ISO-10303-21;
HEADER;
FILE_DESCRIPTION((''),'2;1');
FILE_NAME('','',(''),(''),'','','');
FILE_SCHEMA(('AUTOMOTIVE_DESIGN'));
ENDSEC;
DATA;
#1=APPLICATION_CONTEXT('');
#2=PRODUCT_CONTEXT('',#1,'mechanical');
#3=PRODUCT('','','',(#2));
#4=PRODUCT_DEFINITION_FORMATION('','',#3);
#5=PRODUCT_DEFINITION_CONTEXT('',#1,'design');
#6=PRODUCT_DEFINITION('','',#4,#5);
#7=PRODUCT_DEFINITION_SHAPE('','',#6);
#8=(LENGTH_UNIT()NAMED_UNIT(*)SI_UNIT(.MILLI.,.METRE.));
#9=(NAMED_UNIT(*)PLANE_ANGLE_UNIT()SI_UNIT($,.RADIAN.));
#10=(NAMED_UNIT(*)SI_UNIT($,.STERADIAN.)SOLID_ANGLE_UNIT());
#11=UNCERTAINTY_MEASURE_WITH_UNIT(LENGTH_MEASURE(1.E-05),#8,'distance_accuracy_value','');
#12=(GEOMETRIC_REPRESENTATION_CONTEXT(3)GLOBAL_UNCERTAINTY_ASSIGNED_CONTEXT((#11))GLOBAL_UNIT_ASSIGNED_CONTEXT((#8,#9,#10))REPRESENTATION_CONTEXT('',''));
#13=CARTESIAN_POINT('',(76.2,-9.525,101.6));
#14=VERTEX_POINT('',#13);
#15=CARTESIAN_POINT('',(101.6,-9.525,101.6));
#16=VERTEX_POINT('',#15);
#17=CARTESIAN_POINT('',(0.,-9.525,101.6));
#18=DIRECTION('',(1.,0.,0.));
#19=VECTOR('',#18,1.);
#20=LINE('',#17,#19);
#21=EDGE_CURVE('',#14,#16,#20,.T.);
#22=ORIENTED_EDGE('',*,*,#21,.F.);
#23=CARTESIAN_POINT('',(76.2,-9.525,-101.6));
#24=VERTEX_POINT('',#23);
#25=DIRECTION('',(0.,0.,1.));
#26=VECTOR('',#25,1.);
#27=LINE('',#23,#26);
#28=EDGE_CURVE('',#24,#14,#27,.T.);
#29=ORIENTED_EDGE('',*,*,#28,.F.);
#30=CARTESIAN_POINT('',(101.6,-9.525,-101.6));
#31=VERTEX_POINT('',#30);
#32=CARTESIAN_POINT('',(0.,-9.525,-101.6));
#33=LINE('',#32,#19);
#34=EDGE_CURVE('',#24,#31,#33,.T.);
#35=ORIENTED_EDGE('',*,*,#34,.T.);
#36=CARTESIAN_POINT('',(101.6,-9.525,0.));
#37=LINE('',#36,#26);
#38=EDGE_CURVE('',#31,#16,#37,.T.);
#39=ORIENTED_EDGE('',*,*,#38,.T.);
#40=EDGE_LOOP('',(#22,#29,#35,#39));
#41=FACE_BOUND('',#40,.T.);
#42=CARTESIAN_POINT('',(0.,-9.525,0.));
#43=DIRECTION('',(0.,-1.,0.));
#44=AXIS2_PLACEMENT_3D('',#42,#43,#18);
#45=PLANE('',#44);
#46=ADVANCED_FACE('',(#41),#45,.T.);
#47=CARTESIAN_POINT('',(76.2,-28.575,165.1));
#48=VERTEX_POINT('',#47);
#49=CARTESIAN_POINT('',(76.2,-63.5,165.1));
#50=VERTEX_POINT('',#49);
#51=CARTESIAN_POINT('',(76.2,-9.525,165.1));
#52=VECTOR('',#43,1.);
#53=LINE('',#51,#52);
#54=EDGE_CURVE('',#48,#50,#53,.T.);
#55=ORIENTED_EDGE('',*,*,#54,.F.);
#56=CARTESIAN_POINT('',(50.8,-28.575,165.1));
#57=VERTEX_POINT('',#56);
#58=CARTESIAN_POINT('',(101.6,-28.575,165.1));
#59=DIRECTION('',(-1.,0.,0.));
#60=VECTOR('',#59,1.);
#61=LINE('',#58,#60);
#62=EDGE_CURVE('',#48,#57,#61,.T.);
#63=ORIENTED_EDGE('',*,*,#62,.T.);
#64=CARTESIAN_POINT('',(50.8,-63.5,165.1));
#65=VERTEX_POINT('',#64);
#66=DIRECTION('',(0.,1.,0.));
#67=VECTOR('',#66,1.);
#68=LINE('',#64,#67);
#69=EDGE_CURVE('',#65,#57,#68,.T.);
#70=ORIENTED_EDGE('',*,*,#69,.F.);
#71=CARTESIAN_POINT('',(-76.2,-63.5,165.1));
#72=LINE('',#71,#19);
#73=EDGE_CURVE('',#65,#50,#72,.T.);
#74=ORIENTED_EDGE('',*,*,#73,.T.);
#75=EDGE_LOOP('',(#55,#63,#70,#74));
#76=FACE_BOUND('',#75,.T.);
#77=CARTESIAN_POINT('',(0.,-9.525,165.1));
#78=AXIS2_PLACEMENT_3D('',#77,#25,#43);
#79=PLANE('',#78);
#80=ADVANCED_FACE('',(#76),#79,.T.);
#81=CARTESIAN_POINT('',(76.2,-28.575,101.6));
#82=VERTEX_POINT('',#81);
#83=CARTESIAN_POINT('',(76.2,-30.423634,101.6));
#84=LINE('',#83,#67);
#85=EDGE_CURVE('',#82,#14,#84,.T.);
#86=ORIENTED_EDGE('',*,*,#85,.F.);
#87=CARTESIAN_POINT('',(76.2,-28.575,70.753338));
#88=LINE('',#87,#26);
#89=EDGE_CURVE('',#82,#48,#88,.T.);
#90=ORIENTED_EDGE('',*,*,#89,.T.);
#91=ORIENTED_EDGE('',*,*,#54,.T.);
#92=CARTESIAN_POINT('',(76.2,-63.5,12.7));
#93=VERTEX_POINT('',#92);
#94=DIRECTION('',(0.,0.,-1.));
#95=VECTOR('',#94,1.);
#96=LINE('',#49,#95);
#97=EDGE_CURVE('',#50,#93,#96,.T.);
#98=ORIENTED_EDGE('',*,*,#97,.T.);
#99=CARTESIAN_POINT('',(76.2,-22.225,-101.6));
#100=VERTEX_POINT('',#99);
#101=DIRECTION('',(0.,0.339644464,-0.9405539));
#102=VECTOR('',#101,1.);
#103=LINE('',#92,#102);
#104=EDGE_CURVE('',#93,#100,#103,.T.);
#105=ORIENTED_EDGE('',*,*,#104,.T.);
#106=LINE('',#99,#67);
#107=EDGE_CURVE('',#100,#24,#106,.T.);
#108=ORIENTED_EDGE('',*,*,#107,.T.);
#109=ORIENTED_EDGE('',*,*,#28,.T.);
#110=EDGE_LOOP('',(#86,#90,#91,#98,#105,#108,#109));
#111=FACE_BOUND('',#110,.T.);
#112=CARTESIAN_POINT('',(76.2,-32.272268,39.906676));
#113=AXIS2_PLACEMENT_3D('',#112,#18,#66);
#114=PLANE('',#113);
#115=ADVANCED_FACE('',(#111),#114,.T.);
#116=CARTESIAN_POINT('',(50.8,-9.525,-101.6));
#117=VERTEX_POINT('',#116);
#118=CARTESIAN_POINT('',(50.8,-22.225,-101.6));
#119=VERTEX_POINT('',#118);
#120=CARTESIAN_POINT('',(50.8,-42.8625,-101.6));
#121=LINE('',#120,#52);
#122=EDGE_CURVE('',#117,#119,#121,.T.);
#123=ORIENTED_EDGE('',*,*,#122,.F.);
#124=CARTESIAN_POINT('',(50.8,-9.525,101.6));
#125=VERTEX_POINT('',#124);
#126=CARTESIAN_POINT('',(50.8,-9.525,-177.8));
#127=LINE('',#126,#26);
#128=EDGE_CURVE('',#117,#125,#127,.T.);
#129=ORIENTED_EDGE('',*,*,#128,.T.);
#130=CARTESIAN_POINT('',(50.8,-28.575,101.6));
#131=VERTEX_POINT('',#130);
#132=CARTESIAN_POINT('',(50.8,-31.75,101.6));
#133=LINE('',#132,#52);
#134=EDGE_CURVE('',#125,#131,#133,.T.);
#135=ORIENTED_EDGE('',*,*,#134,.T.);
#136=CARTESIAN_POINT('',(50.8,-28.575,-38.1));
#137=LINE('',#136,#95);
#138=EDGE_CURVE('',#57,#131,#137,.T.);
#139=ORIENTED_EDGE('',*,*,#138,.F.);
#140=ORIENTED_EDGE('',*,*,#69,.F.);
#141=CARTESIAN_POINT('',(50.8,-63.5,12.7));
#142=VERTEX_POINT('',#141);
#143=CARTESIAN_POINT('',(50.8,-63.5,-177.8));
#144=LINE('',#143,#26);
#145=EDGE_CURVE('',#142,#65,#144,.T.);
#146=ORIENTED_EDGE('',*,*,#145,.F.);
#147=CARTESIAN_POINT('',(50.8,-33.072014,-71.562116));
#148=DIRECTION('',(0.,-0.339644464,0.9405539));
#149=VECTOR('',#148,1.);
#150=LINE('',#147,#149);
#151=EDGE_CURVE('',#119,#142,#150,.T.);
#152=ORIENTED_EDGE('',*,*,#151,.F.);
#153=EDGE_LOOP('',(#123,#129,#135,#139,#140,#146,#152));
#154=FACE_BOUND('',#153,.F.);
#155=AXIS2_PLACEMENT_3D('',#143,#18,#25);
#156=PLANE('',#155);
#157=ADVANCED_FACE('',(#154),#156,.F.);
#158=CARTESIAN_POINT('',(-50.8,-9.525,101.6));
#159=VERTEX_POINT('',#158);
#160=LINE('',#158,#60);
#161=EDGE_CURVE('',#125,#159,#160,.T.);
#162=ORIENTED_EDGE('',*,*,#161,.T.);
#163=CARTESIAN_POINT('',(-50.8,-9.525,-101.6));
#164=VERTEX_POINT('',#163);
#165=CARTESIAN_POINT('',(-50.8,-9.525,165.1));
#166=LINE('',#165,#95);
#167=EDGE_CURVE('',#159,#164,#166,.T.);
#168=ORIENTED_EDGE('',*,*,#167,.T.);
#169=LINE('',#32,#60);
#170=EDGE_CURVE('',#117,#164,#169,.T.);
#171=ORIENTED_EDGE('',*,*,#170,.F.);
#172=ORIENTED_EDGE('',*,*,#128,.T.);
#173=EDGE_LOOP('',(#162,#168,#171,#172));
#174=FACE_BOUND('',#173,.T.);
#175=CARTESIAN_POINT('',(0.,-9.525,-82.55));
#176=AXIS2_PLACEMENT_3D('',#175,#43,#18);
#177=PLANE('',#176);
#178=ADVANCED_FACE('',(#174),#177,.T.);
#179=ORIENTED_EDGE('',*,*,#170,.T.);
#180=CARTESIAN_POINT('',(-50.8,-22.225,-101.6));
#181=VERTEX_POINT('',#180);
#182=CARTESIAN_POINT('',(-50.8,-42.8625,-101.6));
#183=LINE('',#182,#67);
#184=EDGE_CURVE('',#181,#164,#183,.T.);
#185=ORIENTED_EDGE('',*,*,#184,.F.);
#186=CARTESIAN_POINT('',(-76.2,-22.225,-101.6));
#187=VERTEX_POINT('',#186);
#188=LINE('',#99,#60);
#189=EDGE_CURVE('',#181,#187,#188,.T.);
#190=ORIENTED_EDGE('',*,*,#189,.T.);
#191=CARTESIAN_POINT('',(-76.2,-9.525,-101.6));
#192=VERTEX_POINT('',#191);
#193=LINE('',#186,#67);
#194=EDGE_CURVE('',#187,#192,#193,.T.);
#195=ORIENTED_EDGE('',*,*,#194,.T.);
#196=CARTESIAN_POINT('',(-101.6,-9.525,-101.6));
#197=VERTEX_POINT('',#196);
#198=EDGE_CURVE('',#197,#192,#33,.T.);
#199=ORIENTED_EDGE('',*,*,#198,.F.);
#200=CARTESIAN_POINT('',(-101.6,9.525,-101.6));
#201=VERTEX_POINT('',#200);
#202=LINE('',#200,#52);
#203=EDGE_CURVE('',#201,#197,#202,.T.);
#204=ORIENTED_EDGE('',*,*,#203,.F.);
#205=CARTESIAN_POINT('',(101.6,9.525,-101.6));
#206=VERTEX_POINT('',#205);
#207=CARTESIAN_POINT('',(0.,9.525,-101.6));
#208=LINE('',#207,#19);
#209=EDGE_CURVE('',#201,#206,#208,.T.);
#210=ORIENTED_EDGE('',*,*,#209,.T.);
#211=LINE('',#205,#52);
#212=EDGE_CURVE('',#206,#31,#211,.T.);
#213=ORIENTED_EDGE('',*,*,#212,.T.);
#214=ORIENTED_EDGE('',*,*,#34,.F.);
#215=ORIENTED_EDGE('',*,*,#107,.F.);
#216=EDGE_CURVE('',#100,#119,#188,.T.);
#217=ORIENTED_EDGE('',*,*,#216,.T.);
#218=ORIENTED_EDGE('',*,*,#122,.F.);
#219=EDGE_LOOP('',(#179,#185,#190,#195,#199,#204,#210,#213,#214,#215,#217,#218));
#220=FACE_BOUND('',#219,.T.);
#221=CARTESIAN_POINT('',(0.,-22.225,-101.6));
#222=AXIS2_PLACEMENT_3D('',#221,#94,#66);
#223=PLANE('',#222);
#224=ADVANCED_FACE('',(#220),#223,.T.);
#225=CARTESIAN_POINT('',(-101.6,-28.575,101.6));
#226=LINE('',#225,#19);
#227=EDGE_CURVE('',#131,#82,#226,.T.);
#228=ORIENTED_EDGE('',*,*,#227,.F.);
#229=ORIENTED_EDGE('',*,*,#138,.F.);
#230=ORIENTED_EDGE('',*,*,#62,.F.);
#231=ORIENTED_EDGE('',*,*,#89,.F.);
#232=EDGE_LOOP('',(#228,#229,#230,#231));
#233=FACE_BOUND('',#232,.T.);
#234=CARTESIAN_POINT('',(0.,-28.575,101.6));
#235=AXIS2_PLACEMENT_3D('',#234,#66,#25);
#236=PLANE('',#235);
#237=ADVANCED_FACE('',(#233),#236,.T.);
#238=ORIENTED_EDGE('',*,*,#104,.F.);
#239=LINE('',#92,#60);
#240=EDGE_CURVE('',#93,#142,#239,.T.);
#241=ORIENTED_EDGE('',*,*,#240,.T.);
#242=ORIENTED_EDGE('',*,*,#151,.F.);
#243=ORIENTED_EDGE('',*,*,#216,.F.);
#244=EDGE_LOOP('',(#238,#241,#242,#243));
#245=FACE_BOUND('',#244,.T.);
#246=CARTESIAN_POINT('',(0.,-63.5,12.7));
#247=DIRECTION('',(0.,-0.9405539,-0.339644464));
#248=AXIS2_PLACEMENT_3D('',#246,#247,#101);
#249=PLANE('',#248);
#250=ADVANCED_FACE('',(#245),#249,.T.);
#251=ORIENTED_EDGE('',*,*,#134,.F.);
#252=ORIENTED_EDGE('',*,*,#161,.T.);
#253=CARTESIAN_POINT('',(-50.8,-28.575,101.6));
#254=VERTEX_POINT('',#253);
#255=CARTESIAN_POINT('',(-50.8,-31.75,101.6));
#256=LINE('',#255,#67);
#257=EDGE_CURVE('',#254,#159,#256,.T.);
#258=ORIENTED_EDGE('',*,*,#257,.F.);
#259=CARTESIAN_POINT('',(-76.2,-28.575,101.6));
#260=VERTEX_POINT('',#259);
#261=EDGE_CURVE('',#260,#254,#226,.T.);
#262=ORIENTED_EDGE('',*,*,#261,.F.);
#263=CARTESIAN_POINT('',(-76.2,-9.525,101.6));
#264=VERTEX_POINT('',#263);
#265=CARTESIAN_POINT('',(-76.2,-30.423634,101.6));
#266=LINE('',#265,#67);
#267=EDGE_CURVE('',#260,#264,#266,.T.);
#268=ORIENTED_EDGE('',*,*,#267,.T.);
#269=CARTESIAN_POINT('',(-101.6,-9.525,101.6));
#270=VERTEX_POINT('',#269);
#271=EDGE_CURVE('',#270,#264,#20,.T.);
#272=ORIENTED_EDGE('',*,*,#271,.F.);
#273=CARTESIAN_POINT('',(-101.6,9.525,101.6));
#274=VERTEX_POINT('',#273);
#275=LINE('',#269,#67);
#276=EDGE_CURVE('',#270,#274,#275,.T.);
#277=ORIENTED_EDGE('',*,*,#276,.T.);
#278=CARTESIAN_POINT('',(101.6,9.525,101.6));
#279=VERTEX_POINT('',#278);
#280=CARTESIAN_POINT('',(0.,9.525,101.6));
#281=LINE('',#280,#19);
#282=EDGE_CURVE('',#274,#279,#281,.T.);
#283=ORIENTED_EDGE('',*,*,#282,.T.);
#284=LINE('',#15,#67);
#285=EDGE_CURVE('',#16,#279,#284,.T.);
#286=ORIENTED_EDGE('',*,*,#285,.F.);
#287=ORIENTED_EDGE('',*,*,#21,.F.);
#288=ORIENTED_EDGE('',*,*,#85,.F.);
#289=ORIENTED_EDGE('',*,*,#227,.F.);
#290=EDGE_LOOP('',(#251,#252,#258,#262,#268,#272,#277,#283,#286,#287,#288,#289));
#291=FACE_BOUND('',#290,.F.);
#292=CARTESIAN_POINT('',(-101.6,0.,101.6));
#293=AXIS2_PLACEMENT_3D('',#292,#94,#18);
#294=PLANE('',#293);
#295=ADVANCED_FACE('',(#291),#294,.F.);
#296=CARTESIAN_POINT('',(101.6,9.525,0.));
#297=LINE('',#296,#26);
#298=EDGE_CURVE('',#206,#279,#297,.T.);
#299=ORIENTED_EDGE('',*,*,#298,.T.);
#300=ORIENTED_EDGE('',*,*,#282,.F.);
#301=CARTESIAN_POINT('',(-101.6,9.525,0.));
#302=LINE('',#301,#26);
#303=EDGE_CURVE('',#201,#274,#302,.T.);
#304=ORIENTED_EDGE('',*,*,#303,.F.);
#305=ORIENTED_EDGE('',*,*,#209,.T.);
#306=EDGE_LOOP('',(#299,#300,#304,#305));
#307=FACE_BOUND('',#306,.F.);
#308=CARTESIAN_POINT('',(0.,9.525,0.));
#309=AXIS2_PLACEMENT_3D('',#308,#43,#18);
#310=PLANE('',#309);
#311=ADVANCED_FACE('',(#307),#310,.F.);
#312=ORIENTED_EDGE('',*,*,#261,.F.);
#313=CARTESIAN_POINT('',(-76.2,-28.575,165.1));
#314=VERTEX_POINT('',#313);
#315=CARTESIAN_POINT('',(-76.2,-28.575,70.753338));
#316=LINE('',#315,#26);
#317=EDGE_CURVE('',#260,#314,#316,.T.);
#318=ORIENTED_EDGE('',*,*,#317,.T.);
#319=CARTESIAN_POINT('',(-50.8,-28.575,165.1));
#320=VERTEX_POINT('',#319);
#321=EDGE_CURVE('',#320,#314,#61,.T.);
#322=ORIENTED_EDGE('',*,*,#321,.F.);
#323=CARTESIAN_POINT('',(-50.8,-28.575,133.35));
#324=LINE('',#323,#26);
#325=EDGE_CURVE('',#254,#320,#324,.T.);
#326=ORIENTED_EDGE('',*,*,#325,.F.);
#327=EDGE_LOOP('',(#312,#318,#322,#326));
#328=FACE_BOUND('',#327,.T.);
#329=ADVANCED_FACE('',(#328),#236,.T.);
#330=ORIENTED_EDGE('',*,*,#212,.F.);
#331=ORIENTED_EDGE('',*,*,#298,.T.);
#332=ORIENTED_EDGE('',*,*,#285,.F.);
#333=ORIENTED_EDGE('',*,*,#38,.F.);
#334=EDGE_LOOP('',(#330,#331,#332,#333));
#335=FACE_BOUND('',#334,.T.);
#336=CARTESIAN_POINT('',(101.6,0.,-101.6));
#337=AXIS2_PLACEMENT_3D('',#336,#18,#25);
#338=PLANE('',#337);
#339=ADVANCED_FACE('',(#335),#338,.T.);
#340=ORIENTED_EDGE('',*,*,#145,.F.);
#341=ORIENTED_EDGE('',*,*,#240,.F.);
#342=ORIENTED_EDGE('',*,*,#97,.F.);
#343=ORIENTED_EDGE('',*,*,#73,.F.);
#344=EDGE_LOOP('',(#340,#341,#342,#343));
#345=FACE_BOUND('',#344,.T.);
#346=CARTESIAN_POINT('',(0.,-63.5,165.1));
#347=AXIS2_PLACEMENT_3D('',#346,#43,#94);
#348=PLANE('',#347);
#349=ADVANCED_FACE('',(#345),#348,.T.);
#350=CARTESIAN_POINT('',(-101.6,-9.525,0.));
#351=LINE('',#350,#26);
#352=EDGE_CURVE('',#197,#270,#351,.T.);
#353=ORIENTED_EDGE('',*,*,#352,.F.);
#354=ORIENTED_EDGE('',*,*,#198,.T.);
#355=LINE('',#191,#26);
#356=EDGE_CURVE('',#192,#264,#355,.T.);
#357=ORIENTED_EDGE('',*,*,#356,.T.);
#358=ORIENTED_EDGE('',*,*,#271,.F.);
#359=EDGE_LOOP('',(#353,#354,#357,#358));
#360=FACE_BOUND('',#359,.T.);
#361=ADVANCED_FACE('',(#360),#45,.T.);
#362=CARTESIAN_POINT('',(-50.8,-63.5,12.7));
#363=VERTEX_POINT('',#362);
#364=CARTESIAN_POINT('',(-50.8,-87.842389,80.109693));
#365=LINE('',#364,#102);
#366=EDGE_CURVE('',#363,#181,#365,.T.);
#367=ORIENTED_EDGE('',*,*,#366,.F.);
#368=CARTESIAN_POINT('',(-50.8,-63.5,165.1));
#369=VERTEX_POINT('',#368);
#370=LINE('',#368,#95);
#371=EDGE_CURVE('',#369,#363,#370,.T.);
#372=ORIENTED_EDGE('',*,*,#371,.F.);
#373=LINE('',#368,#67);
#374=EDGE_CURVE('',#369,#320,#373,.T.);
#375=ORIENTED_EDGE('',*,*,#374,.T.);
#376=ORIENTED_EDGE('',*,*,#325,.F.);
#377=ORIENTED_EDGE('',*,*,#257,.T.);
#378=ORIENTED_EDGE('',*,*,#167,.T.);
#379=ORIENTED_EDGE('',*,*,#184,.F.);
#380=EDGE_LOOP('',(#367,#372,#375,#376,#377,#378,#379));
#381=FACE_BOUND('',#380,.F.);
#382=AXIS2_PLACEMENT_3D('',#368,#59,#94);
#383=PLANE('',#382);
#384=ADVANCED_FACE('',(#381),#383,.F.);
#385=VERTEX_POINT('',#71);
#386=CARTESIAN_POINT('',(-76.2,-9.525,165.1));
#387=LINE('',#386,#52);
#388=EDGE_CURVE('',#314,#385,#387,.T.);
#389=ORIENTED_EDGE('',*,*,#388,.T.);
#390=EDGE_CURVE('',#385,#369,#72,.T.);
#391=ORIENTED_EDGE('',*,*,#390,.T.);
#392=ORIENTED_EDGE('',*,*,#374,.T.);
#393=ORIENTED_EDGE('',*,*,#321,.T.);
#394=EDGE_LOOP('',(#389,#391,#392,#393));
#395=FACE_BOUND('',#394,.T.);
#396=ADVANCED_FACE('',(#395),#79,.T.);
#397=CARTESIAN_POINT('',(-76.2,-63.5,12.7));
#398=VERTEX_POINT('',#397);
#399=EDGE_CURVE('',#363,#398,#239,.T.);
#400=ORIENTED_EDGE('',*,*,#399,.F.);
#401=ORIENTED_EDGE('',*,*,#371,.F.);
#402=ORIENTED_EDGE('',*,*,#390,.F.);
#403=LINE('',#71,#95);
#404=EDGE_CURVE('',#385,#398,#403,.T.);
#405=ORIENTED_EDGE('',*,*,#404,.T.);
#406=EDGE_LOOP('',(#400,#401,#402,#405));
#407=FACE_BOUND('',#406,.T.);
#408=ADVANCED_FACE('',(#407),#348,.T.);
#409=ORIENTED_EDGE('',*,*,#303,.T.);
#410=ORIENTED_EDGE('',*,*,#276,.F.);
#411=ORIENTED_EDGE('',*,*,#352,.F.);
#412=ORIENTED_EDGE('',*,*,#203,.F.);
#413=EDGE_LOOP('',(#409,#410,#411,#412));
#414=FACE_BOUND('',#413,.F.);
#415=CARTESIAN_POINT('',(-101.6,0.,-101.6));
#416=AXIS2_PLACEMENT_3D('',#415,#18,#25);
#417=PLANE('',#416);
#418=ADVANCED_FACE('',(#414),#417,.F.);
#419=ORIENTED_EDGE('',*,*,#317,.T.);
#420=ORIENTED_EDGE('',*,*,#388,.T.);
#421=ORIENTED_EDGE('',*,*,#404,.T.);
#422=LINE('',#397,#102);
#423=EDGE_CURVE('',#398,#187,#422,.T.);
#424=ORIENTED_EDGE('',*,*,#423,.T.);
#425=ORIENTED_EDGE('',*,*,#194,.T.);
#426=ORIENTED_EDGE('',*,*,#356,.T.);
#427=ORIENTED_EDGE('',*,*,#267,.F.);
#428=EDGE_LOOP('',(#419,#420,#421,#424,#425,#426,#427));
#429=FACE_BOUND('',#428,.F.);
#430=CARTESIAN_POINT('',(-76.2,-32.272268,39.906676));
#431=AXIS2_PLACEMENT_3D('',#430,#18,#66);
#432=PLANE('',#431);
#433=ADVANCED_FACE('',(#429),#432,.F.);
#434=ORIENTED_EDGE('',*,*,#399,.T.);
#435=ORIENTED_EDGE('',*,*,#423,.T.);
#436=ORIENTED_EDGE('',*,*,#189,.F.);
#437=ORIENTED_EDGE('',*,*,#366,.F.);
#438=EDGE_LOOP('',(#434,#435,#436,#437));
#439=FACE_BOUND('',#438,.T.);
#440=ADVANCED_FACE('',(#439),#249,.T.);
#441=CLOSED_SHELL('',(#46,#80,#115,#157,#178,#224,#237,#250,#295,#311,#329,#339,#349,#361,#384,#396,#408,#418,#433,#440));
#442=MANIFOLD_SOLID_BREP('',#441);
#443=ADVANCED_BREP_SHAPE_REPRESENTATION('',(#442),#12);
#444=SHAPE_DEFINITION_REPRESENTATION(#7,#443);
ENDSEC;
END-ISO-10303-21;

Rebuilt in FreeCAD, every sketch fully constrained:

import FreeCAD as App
import Part
import Sketcher
Q = App.Units.Quantity

doc = App.newDocument("Part")
body = doc.addObject("PartDesign::Body", "Body")

# Sketch on XZ plane
sketch1 = body.newObject("Sketcher::SketchObject", "Sketch")
sketch1.AttachmentSupport = (doc.getObject("XZ_Plane"), [""])
sketch1.MapMode = "FlatFace"
sketch1.addGeometry([
    Part.LineSegment(App.Vector(-101.6, 101.6, 0), App.Vector(-101.6, -101.6, 0)),
    Part.LineSegment(App.Vector(-101.6, -101.6, 0), App.Vector(101.6, -101.6, 0)),
    Part.LineSegment(App.Vector(101.6, -101.6, 0), App.Vector(101.6, 101.6, 0)),
    Part.LineSegment(App.Vector(101.6, 101.6, 0), App.Vector(-101.6, 101.6, 0)),
], False)
sketch1.addConstraint([
    Sketcher.Constraint("Coincident", 0, 2, 1, 1),
    Sketcher.Constraint("Coincident", 1, 2, 2, 1),
    Sketcher.Constraint("Coincident", 2, 2, 3, 1),
    Sketcher.Constraint("Coincident", 3, 2, 0, 1),
    Sketcher.Constraint("Vertical", 0),
    Sketcher.Constraint("Horizontal", 1),
    Sketcher.Constraint("Vertical", 2),
    Sketcher.Constraint("Horizontal", 3),
    Sketcher.Constraint("Symmetric", 0, 2, 2, 2, -1, 1),
    Sketcher.Constraint("Equal", 3, 0),
    Sketcher.Constraint("DistanceX", 1, 1, 1, 2, Q("8 in")),
])
pad1 = body.newObject("PartDesign::Pad", "Pad")
pad1.Profile = sketch1
pad1.Length = Q("0.75 in")
pad1.Midplane = True

# Sketch on YZ plane
sketch2 = body.newObject("Sketcher::SketchObject", "Sketch001")
sketch2.AttachmentSupport = (doc.getObject("YZ_Plane"), [""])
sketch2.MapMode = "FlatFace"
sketch2.addGeometry([
    Part.LineSegment(App.Vector(-9.525, -101.6, 0), App.Vector(-9.525, 165.1, 0)),  # 0
    Part.LineSegment(App.Vector(-9.525, 165.1, 0), App.Vector(-63.5, 165.1, 0)),  # 1
    Part.LineSegment(App.Vector(-63.5, 165.1, 0), App.Vector(-63.5, 12.7, 0)),  # 2
    Part.LineSegment(App.Vector(-63.5, 12.7, 0), App.Vector(-22.225, -101.6, 0)),  # 3
    Part.LineSegment(App.Vector(-22.225, -101.6, 0), App.Vector(-9.525, -101.6, 0)),  # 4
], False)
sketch2.addConstraint([
    Sketcher.Constraint("Coincident", 0, 2, 1, 1),
    Sketcher.Constraint("Coincident", 1, 2, 2, 1),
    Sketcher.Constraint("Coincident", 2, 2, 3, 1),
    Sketcher.Constraint("Coincident", 3, 2, 4, 1),
    Sketcher.Constraint("Coincident", 4, 2, 0, 1),
    Sketcher.Constraint("Vertical", 0),
    Sketcher.Constraint("Horizontal", 1),
    Sketcher.Constraint("Vertical", 2),
    Sketcher.Constraint("Horizontal", 4),
    Sketcher.Constraint("DistanceY", 2, 2, 2, 1, Q("6 in")),
    Sketcher.Constraint("DistanceX", 4, 1, 4, 2, Q("0.5 in")),
    Sketcher.Constraint("DistanceY", 0, 1, 0, 2, Q("10.5 in")),
    Sketcher.Constraint("DistanceY", 3, 2, -1, 1, Q("4 in")),
    Sketcher.Constraint("DistanceX", 1, 2, -1, 1, Q("2.5 in")),
    Sketcher.Constraint("DistanceX", 1, 2, 1, 1, Q("2.125 in")),
])
pad2 = body.newObject("PartDesign::Pad", "Pad001")
pad2.Profile = sketch2
pad2.Length = Q("6 in")
pad2.Midplane = True

# Sketch on YZ plane
sketch3 = body.newObject("Sketcher::SketchObject", "Sketch002")
sketch3.AttachmentSupport = (doc.getObject("YZ_Plane"), [""])
sketch3.MapMode = "FlatFace"
sketch3.addGeometry([
    Part.LineSegment(App.Vector(-28.575, 165.1, 0), App.Vector(-28.575, 101.6, 0)),
    Part.LineSegment(App.Vector(-28.575, 101.6, 0), App.Vector(9.525, 101.6, 0)),
    Part.LineSegment(App.Vector(9.525, 101.6, 0), App.Vector(9.525, 165.1, 0)),
    Part.LineSegment(App.Vector(9.525, 165.1, 0), App.Vector(-28.575, 165.1, 0)),
], False)
sketch3.addConstraint([
    Sketcher.Constraint("Coincident", 0, 2, 1, 1),
    Sketcher.Constraint("Coincident", 1, 2, 2, 1),
    Sketcher.Constraint("Coincident", 2, 2, 3, 1),
    Sketcher.Constraint("Coincident", 3, 2, 0, 1),
    Sketcher.Constraint("Vertical", 0),
    Sketcher.Constraint("Horizontal", 1),
    Sketcher.Constraint("Vertical", 2),
    Sketcher.Constraint("Horizontal", 3),
    Sketcher.Constraint("DistanceX", 1, 1, 1, 2, Q("1.5 in")),
    Sketcher.Constraint("DistanceY", 0, 2, 0, 1, Q("2.5 in")),
    Sketcher.Constraint("DistanceY", -1, 1, 0, 2, Q("4 in")),
    Sketcher.Constraint("DistanceX", 0, 2, -1, 1, Q("1.125 in")),
])
pocket1 = body.newObject("PartDesign::Pocket", "Pocket")
pocket1.Profile = sketch3
pocket1.Length = Q("8 in")
pocket1.Midplane = True

# Sketch on XZ plane
sketch4 = body.newObject("Sketcher::SketchObject", "Sketch003")
sketch4.AttachmentSupport = (doc.getObject("XZ_Plane"), [""])
sketch4.MapMode = "FlatFace"
sketch4.AttachmentOffset = App.Placement(App.Vector(0, 0, 2.5 * 25.4), App.Rotation())
sketch4.addGeometry([
    Part.LineSegment(App.Vector(-50.8, -177.8, 0), App.Vector(50.8, -177.8, 0)),
    Part.LineSegment(App.Vector(50.8, -177.8, 0), App.Vector(50.8, 165.1, 0)),
    Part.LineSegment(App.Vector(50.8, 165.1, 0), App.Vector(-50.8, 165.1, 0)),
    Part.LineSegment(App.Vector(-50.8, 165.1, 0), App.Vector(-50.8, -177.8, 0)),
], False)
sketch4.addConstraint([
    Sketcher.Constraint("Coincident", 0, 2, 1, 1),
    Sketcher.Constraint("Coincident", 1, 2, 2, 1),
    Sketcher.Constraint("Coincident", 2, 2, 3, 1),
    Sketcher.Constraint("Coincident", 3, 2, 0, 1),
    Sketcher.Constraint("Horizontal", 0),
    Sketcher.Constraint("Vertical", 1),
    Sketcher.Constraint("Horizontal", 2),
    Sketcher.Constraint("Vertical", 3),
    Sketcher.Constraint("DistanceX", 0, 1, 0, 2, Q("4 in")),
    Sketcher.Constraint("DistanceY", 1, 1, 1, 2, Q("13.5 in")),
    Sketcher.Constraint("DistanceX", -1, 1, 0, 2, Q("2 in")),
    Sketcher.Constraint("DistanceY", 0, 2, -1, 1, Q("7 in")),
])
pocket2 = body.newObject("PartDesign::Pocket", "Pocket001")
pocket2.Profile = sketch4
pocket2.Length = Q("2.125 in")

doc.recompute()
